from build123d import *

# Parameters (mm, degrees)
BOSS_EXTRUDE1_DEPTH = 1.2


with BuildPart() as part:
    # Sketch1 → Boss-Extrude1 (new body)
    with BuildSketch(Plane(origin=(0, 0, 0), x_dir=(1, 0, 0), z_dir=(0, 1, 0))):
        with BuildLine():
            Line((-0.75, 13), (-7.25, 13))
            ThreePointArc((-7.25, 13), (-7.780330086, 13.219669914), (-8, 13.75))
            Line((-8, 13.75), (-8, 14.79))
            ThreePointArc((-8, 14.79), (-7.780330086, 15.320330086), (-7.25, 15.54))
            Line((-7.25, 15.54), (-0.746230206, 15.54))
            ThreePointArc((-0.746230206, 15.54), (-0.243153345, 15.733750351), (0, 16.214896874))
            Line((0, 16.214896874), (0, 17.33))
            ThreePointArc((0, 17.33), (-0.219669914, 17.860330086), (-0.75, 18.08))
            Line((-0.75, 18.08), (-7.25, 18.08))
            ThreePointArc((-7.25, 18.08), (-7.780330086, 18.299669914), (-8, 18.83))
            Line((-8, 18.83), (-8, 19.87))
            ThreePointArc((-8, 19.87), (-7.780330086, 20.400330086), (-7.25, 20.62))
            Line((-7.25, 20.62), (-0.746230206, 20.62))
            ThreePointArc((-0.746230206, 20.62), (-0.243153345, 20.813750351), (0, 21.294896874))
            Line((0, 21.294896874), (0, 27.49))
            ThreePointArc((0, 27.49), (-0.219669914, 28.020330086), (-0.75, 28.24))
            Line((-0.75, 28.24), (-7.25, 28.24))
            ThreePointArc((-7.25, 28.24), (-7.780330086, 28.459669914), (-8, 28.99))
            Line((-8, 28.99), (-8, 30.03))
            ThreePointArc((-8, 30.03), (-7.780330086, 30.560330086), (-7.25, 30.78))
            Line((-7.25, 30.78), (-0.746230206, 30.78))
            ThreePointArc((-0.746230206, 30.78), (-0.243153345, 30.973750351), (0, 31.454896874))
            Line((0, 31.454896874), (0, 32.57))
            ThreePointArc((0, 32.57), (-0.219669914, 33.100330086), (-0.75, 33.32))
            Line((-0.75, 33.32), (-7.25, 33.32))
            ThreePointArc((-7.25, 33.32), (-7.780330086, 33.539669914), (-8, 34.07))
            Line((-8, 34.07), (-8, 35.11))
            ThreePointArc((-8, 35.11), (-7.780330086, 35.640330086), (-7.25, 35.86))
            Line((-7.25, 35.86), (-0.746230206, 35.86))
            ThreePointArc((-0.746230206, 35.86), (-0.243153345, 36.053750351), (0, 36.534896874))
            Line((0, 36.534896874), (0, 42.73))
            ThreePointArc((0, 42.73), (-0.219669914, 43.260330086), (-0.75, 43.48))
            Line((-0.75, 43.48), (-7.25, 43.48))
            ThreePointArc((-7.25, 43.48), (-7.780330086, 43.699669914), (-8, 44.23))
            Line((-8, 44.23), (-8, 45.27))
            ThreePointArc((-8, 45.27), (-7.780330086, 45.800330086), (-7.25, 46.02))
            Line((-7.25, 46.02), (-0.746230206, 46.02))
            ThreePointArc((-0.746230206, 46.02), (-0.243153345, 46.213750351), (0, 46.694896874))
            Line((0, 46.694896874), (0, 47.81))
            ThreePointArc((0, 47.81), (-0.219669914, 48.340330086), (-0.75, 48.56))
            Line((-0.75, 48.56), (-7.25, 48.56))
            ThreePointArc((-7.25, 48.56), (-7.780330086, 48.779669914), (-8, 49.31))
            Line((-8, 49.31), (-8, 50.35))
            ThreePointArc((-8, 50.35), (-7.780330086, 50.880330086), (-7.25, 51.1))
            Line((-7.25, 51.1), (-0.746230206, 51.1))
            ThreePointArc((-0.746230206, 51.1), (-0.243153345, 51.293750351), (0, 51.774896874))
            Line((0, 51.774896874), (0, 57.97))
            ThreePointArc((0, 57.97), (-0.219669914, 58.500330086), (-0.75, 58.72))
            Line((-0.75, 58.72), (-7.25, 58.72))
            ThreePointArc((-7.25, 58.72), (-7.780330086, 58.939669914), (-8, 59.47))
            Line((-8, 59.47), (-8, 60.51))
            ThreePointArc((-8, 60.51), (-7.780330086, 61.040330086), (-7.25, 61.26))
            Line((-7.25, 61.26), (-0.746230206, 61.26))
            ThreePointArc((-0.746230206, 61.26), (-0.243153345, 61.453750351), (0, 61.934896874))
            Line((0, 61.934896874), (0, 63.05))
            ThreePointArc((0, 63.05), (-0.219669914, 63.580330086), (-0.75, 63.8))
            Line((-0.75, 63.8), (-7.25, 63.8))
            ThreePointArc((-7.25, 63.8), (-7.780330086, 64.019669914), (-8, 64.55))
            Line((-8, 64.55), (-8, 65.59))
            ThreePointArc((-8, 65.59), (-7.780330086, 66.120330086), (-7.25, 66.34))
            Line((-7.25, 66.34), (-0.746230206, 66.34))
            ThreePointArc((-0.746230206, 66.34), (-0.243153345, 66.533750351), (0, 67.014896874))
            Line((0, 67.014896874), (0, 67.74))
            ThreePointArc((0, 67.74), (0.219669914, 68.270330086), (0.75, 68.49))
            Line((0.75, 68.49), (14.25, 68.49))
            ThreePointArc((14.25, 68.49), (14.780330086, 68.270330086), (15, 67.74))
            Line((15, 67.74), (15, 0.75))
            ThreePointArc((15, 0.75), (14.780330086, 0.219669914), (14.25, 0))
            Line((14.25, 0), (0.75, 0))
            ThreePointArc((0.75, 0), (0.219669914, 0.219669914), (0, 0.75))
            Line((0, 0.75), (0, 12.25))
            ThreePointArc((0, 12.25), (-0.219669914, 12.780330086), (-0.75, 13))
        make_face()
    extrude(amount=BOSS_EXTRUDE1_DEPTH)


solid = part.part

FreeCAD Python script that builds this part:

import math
import FreeCAD as App
import Part
import Sketcher
from FreeCAD import Vector
Q = App.Units.Quantity

doc = App.newDocument("Part")
body = doc.addObject("PartDesign::Body", "Body")

# Sketch on XZ plane
sketch1 = doc.addObject("Sketcher::SketchObject", "Sketch")
body.addObject(sketch1)
sketch1.AttachmentSupport = (doc.XZ_Plane, [""])
sketch1.MapMode = "FlatFace"
sketch1.addGeometry([
    Part.LineSegment(Vector(-7.2, -13, 0), Vector(-0.8, -13, 0)),  # 0
    Part.ArcOfCircle(Part.Circle(Vector(-0.8, -12.2, 0), Vector(0, 0, 1), 0.8), math.radians(-90), math.radians(0)),  # 1
    Part.LineSegment(Vector(0, -12.2, 0), Vector(0, -0.8, 0)),  # 2
    Part.ArcOfCircle(Part.Circle(Vector(0.8, -0.8, 0), Vector(0, 0, 1), 0.8), math.radians(90), math.radians(180)),  # 3
    Part.LineSegment(Vector(0.8, 0, 0), Vector(14.2, 0, 0)),  # 4
    Part.ArcOfCircle(Part.Circle(Vector(14.2, -0.8, 0), Vector(0, 0, 1), 0.8), math.radians(0), math.radians(90)),  # 5
    Part.LineSegment(Vector(15, -0.8, 0), Vector(15, -67.7, 0)),  # 6
    Part.ArcOfCircle(Part.Circle(Vector(14.2, -67.7, 0), Vector(0, 0, 1), 0.8), math.radians(-90), math.radians(0)),  # 7
    Part.LineSegment(Vector(14.2, -68.5, 0), Vector(0.8, -68.5, 0)),  # 8
    Part.ArcOfCircle(Part.Circle(Vector(0.8, -67.7, 0), Vector(0, 0, 1), 0.8), math.radians(180), math.radians(270)),  # 9
    Part.LineSegment(Vector(0, -67.7, 0), Vector(0, -67, 0)),  # 10
    Part.ArcOfCircle(Part.Circle(Vector(-0.7, -67.1, 0), Vector(0, 0, 1), 0.8), math.radians(6), math.radians(90)),  # 11
    Part.LineSegment(Vector(-0.7, -66.3, 0), Vector(-7.2, -66.3, 0)),  # 12
    Part.ArcOfCircle(Part.Circle(Vector(-7.2, -65.6, 0), Vector(0, 0, 1), 0.8), math.radians(180), math.radians(270)),  # 13
    Part.LineSegment(Vector(-8, -65.6, 0), Vector(-8, -64.5, 0)),  # 14
    Part.ArcOfCircle(Part.Circle(Vector(-7.2, -64.5, 0), Vector(0, 0, 1), 0.8), math.radians(90), math.radians(180)),  # 15
    Part.LineSegment(Vector(-7.2, -63.8, 0), Vector(-0.8, -63.8, 0)),  # 16
    Part.ArcOfCircle(Part.Circle(Vector(-0.8, -63, 0), Vector(0, 0, 1), 0.8), math.radians(-90), math.radians(0)),  # 17
    Part.LineSegment(Vector(0, -63, 0), Vector(0, -61.9, 0)),  # 18
    Part.ArcOfCircle(Part.Circle(Vector(-0.7, -62, 0), Vector(0, 0, 1), 0.8), math.radians(6), math.radians(90)),  # 19
    Part.LineSegment(Vector(-0.7, -61.3, 0), Vector(-7.2, -61.3, 0)),  # 20
    Part.ArcOfCircle(Part.Circle(Vector(-7.2, -60.5, 0), Vector(0, 0, 1), 0.8), math.radians(180), math.radians(270)),  # 21
    Part.LineSegment(Vector(-8, -60.5, 0), Vector(-8, -59.5, 0)),  # 22
    Part.ArcOfCircle(Part.Circle(Vector(-7.2, -59.5, 0), Vector(0, 0, 1), 0.8), math.radians(90), math.radians(180)),  # 23
    Part.LineSegment(Vector(-7.2, -58.7, 0), Vector(-0.8, -58.7, 0)),  # 24
    Part.ArcOfCircle(Part.Circle(Vector(-0.8, -58, 0), Vector(0, 0, 1), 0.8), math.radians(-90), math.radians(0)),  # 25
    Part.LineSegment(Vector(0, -58, 0), Vector(0, -51.8, 0)),  # 26
    Part.ArcOfCircle(Part.Circle(Vector(-0.7, -51.9, 0), Vector(0, 0, 1), 0.8), math.radians(6), math.radians(90)),  # 27
    Part.LineSegment(Vector(-0.7, -51.1, 0), Vector(-7.2, -51.1, 0)),  # 28
    Part.ArcOfCircle(Part.Circle(Vector(-7.2, -50.4, 0), Vector(0, 0, 1), 0.8), math.radians(180), math.radians(270)),  # 29
    Part.LineSegment(Vector(-8, -50.4, 0), Vector(-8, -49.3, 0)),  # 30
    Part.ArcOfCircle(Part.Circle(Vector(-7.2, -49.3, 0), Vector(0, 0, 1), 0.8), math.radians(90), math.radians(180)),  # 31
    Part.LineSegment(Vector(-7.2, -48.6, 0), Vector(-0.8, -48.6, 0)),  # 32
    Part.ArcOfCircle(Part.Circle(Vector(-0.8, -47.8, 0), Vector(0, 0, 1), 0.8), math.radians(-90), math.radians(0)),  # 33
    Part.LineSegment(Vector(0, -47.8, 0), Vector(0, -46.7, 0)),  # 34
    Part.ArcOfCircle(Part.Circle(Vector(-0.7, -46.8, 0), Vector(0, 0, 1), 0.8), math.radians(6), math.radians(90)),  # 35
    Part.LineSegment(Vector(-0.7, -46, 0), Vector(-7.2, -46, 0)),  # 36
    Part.ArcOfCircle(Part.Circle(Vector(-7.2, -45.3, 0), Vector(0, 0, 1), 0.8), math.radians(180), math.radians(270)),  # 37
    Part.LineSegment(Vector(-8, -45.3, 0), Vector(-8, -44.2, 0)),  # 38
    Part.ArcOfCircle(Part.Circle(Vector(-7.2, -44.2, 0), Vector(0, 0, 1), 0.8), math.radians(90), math.radians(180)),  # 39
    Part.LineSegment(Vector(-7.2, -43.5, 0), Vector(-0.8, -43.5, 0)),  # 40
    Part.ArcOfCircle(Part.Circle(Vector(-0.8, -42.7, 0), Vector(0, 0, 1), 0.8), math.radians(-90), math.radians(0)),  # 41
    Part.LineSegment(Vector(0, -42.7, 0), Vector(0, -36.5, 0)),  # 42
    Part.ArcOfCircle(Part.Circle(Vector(-0.7, -36.6, 0), Vector(0, 0, 1), 0.8), math.radians(6), math.radians(90)),  # 43
    Part.LineSegment(Vector(-0.7, -35.9, 0), Vector(-7.2, -35.9, 0)),  # 44
    Part.ArcOfCircle(Part.Circle(Vector(-7.2, -35.1, 0), Vector(0, 0, 1), 0.8), math.radians(180), math.radians(270)),  # 45
    Part.LineSegment(Vector(-8, -35.1, 0), Vector(-8, -34.1, 0)),  # 46
    Part.ArcOfCircle(Part.Circle(Vector(-7.2, -34.1, 0), Vector(0, 0, 1), 0.8), math.radians(90), math.radians(180)),  # 47
    Part.LineSegment(Vector(-7.2, -33.3, 0), Vector(-0.8, -33.3, 0)),  # 48
    Part.ArcOfCircle(Part.Circle(Vector(-0.8, -32.6, 0), Vector(0, 0, 1), 0.8), math.radians(-90), math.radians(0)),  # 49
    Part.LineSegment(Vector(0, -32.6, 0), Vector(0, -31.5, 0)),  # 50
    Part.ArcOfCircle(Part.Circle(Vector(-0.7, -31.5, 0), Vector(0, 0, 1), 0.8), math.radians(6), math.radians(90)),  # 51
    Part.LineSegment(Vector(-0.7, -30.8, 0), Vector(-7.2, -30.8, 0)),  # 52
    Part.ArcOfCircle(Part.Circle(Vector(-7.2, -30, 0), Vector(0, 0, 1), 0.8), math.radians(180), math.radians(270)),  # 53
    Part.LineSegment(Vector(-8, -30, 0), Vector(-8, -29, 0)),  # 54
    Part.ArcOfCircle(Part.Circle(Vector(-7.2, -29, 0), Vector(0, 0, 1), 0.8), math.radians(90), math.radians(180)),  # 55
    Part.LineSegment(Vector(-7.2, -28.2, 0), Vector(-0.8, -28.2, 0)),  # 56
    Part.ArcOfCircle(Part.Circle(Vector(-0.8, -27.5, 0), Vector(0, 0, 1), 0.8), math.radians(-90), math.radians(0)),  # 57
    Part.LineSegment(Vector(0, -27.5, 0), Vector(0, -21.3, 0)),  # 58
    Part.ArcOfCircle(Part.Circle(Vector(-0.7, -21.4, 0), Vector(0, 0, 1), 0.8), math.radians(6), math.radians(90)),  # 59
    Part.LineSegment(Vector(-0.7, -20.6, 0), Vector(-7.2, -20.6, 0)),  # 60
    Part.ArcOfCircle(Part.Circle(Vector(-7.2, -19.9, 0), Vector(0, 0, 1), 0.8), math.radians(180), math.radians(270)),  # 61
    Part.LineSegment(Vector(-8, -19.9, 0), Vector(-8, -18.8, 0)),  # 62
    Part.ArcOfCircle(Part.Circle(Vector(-7.2, -18.8, 0), Vector(0, 0, 1), 0.8), math.radians(90), math.radians(180)),  # 63
    Part.LineSegment(Vector(-7.2, -18.1, 0), Vector(-0.8, -18.1, 0)),  # 64
    Part.ArcOfCircle(Part.Circle(Vector(-0.8, -17.3, 0), Vector(0, 0, 1), 0.8), math.radians(-90), math.radians(0)),  # 65
    Part.LineSegment(Vector(0, -17.3, 0), Vector(0, -16.2, 0)),  # 66
    Part.ArcOfCircle(Part.Circle(Vector(-0.7, -16.3, 0), Vector(0, 0, 1), 0.8), math.radians(6), math.radians(90)),  # 67
    Part.LineSegment(Vector(-0.7, -15.5, 0), Vector(-7.2, -15.5, 0)),  # 68
    Part.ArcOfCircle(Part.Circle(Vector(-7.2, -14.8, 0), Vector(0, 0, 1), 0.8), math.radians(180), math.radians(270)),  # 69
    Part.LineSegment(Vector(-8, -14.8, 0), Vector(-8, -13.8, 0)),  # 70
    Part.ArcOfCircle(Part.Circle(Vector(-7.2, -13.8, 0), Vector(0, 0, 1), 0.8), math.radians(90), math.radians(180)),  # 71
], False)
sketch1.addConstraint([
    Sketcher.Constraint("Tangent", 0, 2, 1, 1),
    Sketcher.Constraint("Tangent", 1, 2, 2, 1),
    Sketcher.Constraint("Tangent", 2, 2, 3, 2),
    Sketcher.Constraint("Tangent", 3, 1, 4, 1),
    Sketcher.Constraint("Tangent", 4, 2, 5, 2),
    Sketcher.Constraint("Tangent", 5, 1, 6, 1),
    Sketcher.Constraint("Tangent", 6, 2, 7, 2),
    Sketcher.Constraint("Tangent", 7, 1, 8, 1),
    Sketcher.Constraint("Tangent", 8, 2, 9, 2),
    Sketcher.Constraint("Tangent", 9, 1, 10, 1),
    Sketcher.Constraint("Coincident", 10, 2, 11, 1),
    Sketcher.Constraint("Tangent", 11, 2, 12, 1),
    Sketcher.Constraint("Tangent", 12, 2, 13, 2),
    Sketcher.Constraint("Tangent", 13, 1, 14, 1),
    Sketcher.Constraint("Tangent", 14, 2, 15, 2),
    Sketcher.Constraint("Tangent", 15, 1, 16, 1),
    Sketcher.Constraint("Tangent", 16, 2, 17, 1),
    Sketcher.Constraint("Tangent", 17, 2, 18, 1),
    Sketcher.Constraint("Coincident", 18, 2, 19, 1),
    Sketcher.Constraint("Tangent", 19, 2, 20, 1),
    Sketcher.Constraint("Tangent", 20, 2, 21, 2),
    Sketcher.Constraint("Tangent", 21, 1, 22, 1),
    Sketcher.Constraint("Tangent", 22, 2, 23, 2),
    Sketcher.Constraint("Tangent", 23, 1, 24, 1),
    Sketcher.Constraint("Tangent", 24, 2, 25, 1),
    Sketcher.Constraint("Tangent", 25, 2, 26, 1),
    Sketcher.Constraint("Coincident", 26, 2, 27, 1),
    Sketcher.Constraint("Tangent", 27, 2, 28, 1),
    Sketcher.Constraint("Tangent", 28, 2, 29, 2),
    Sketcher.Constraint("Tangent", 29, 1, 30, 1),
    Sketcher.Constraint("Tangent", 30, 2, 31, 2),
    Sketcher.Constraint("Tangent", 31, 1, 32, 1),
    Sketcher.Constraint("Tangent", 32, 2, 33, 1),
    Sketcher.Constraint("Tangent", 33, 2, 34, 1),
    Sketcher.Constraint("Coincident", 34, 2, 35, 1),
    Sketcher.Constraint("Tangent", 35, 2, 36, 1),
    Sketcher.Constraint("Tangent", 36, 2, 37, 2),
    Sketcher.Constraint("Tangent", 37, 1, 38, 1),
    Sketcher.Constraint("Tangent", 38, 2, 39, 2),
    Sketcher.Constraint("Tangent", 39, 1, 40, 1),
    Sketcher.Constraint("Tangent", 40, 2, 41, 1),
    Sketcher.Constraint("Tangent", 41, 2, 42, 1),
    Sketcher.Constraint("Coincident", 42, 2, 43, 1),
    Sketcher.Constraint("Tangent", 43, 2, 44, 1),
    Sketcher.Constraint("Tangent", 44, 2, 45, 2),
    Sketcher.Constraint("Tangent", 45, 1, 46, 1),
    Sketcher.Constraint("Tangent", 46, 2, 47, 2),
    Sketcher.Constraint("Tangent", 47, 1, 48, 1),
    Sketcher.Constraint("Tangent", 48, 2, 49, 1),
    Sketcher.Constraint("Tangent", 49, 2, 50, 1),
    Sketcher.Constraint("Coincident", 50, 2, 51, 1),
    Sketcher.Constraint("Tangent", 51, 2, 52, 1),
    Sketcher.Constraint("Tangent", 52, 2, 53, 2),
    Sketcher.Constraint("Tangent", 53, 1, 54, 1),
    Sketcher.Constraint("Tangent", 54, 2, 55, 2),
    Sketcher.Constraint("Tangent", 55, 1, 56, 1),
    Sketcher.Constraint("Tangent", 56, 2, 57, 1),
    Sketcher.Constraint("Tangent", 57, 2, 58, 1),
    Sketcher.Constraint("Coincident", 58, 2, 59, 1),
    Sketcher.Constraint("Tangent", 59, 2, 60, 1),
    Sketcher.Constraint("Tangent", 60, 2, 61, 2),
    Sketcher.Constraint("Tangent", 61, 1, 62, 1),
    Sketcher.Constraint("Tangent", 62, 2, 63, 2),
    Sketcher.Constraint("Tangent", 63, 1, 64, 1),
    Sketcher.Constraint("Tangent", 64, 2, 65, 1),
    Sketcher.Constraint("Tangent", 65, 2, 66, 1),
    Sketcher.Constraint("Coincident", 66, 2, 67, 1),
    Sketcher.Constraint("Tangent", 67, 2, 68, 1),
    Sketcher.Constraint("Tangent", 68, 2, 69, 2),
    Sketcher.Constraint("Tangent", 69, 1, 70, 1),
    Sketcher.Constraint("Tangent", 70, 2, 71, 2),
    Sketcher.Constraint("Tangent", 71, 1, 0, 1),
    Sketcher.Constraint("Horizontal", 0),
    Sketcher.Constraint("Vertical", 2),
    Sketcher.Constraint("Horizontal", 4),
    Sketcher.Constraint("Vertical", 6),
    Sketcher.Constraint("Horizontal", 8),
    Sketcher.Constraint("Vertical", 10),
    Sketcher.Constraint("Horizontal", 12),
    Sketcher.Constraint("Vertical", 14),
    Sketcher.Constraint("Horizontal", 16),
    Sketcher.Constraint("Vertical", 18),
    Sketcher.Constraint("Horizontal", 20),
    Sketcher.Constraint("Vertical", 22),
    Sketcher.Constraint("Horizontal", 24),
    Sketcher.Constraint("Vertical", 26),
    Sketcher.Constraint("Horizontal", 28),
    Sketcher.Constraint("Vertical", 30),
    Sketcher.Constraint("Horizontal", 32),
    Sketcher.Constraint("Vertical", 34),
    Sketcher.Constraint("Horizontal", 36),
    Sketcher.Constraint("Vertical", 38),
    Sketcher.Constraint("Horizontal", 40),
    Sketcher.Constraint("Vertical", 42),
    Sketcher.Constraint("Horizontal", 44),
    Sketcher.Constraint("Vertical", 46),
    Sketcher.Constraint("Horizontal", 48),
    Sketcher.Constraint("Vertical", 50),
    Sketcher.Constraint("Horizontal", 52),
    Sketcher.Constraint("Vertical", 54),
    Sketcher.Constraint("Horizontal", 56),
    Sketcher.Constraint("Vertical", 58),
    Sketcher.Constraint("Horizontal", 60),
    Sketcher.Constraint("Vertical", 62),
    Sketcher.Constraint("Horizontal", 64),
    Sketcher.Constraint("Vertical", 66),
    Sketcher.Constraint("Horizontal", 68),
    Sketcher.Constraint("Vertical", 70),
    Sketcher.Constraint("Equal", 1, 3),
    Sketcher.Constraint("Equal", 3, 5),
    Sketcher.Constraint("Equal", 5, 7),
    Sketcher.Constraint("Equal", 7, 9),
    Sketcher.Constraint("Equal", 9, 11),
    Sketcher.Constraint("Equal", 11, 13),
    Sketcher.Constraint("Equal", 13, 15),
    Sketcher.Constraint("Equal", 15, 17),
    Sketcher.Constraint("Equal", 17, 19),
    Sketcher.Constraint("Equal", 19, 21),
    Sketcher.Constraint("Equal", 21, 23),
    Sketcher.Constraint("Equal", 23, 25),
    Sketcher.Constraint("Equal", 25, 27),
    Sketcher.Constraint("Equal", 27, 29),
    Sketcher.Constraint("Equal", 29, 31),
    Sketcher.Constraint("Equal", 31, 33),
    Sketcher.Constraint("Equal", 33, 35),
    Sketcher.Constraint("Equal", 35, 37),
    Sketcher.Constraint("Equal", 37, 39),
    Sketcher.Constraint("Equal", 39, 41),
    Sketcher.Constraint("Equal", 41, 43),
    Sketcher.Constraint("Equal", 43, 45),
    Sketcher.Constraint("Equal", 45, 47),
    Sketcher.Constraint("Equal", 47, 49),
    Sketcher.Constraint("Equal", 49, 51),
    Sketcher.Constraint("Equal", 51, 53),
    Sketcher.Constraint("Equal", 53, 55),
    Sketcher.Constraint("Equal", 55, 57),
    Sketcher.Constraint("Equal", 57, 59),
    Sketcher.Constraint("Equal", 59, 61),
    Sketcher.Constraint("Equal", 61, 63),
    Sketcher.Constraint("Equal", 63, 65),
    Sketcher.Constraint("Equal", 65, 67),
    Sketcher.Constraint("Equal", 67, 69),
    Sketcher.Constraint("Equal", 69, 71),
    Sketcher.Constraint("PointOnObject", 1, 2, -2),
    Sketcher.Constraint("PointOnObject", 3, 1, -1),
    Sketcher.Constraint("PointOnObject", 9, 1, -2),
    Sketcher.Constraint("PointOnObject", 17, 2, -2),
    Sketcher.Constraint("PointOnObject", 25, 2, -2),
    Sketcher.Constraint("PointOnObject", 33, 2, -2),
    Sketcher.Constraint("PointOnObject", 41, 2, -2),
    Sketcher.Constraint("PointOnObject", 49, 2, -2),
    Sketcher.Constraint("PointOnObject", 57, 2, -2),
    Sketcher.Constraint("PointOnObject", 65, 2, -2),
    Sketcher.Constraint("Vertical", 11, 3, 19, 3),
    Sketcher.Constraint("Vertical", 15, 3, 21, 3),
    Sketcher.Constraint("Vertical", 19, 3, 27, 3),
    Sketcher.Constraint("Vertical", 23, 3, 29, 3),
    Sketcher.Constraint("Vertical", 27, 3, 35, 3),
    Sketcher.Constraint("Vertical", 31, 3, 37, 3),
    Sketcher.Constraint("Vertical", 35, 3, 43, 3),
    Sketcher.Constraint("Vertical", 39, 3, 45, 3),
    Sketcher.Constraint("Vertical", 43, 3, 51, 3),
    Sketcher.Constraint("Vertical", 47, 3, 53, 3),
    Sketcher.Constraint("Vertical", 51, 3, 59, 3),
    Sketcher.Constraint("Vertical", 55, 3, 61, 3),
    Sketcher.Constraint("Vertical", 59, 3, 67, 3),
    Sketcher.Constraint("Vertical", 63, 3, 69, 3),
    Sketcher.Constraint("Equal", 14, 22),
    Sketcher.Constraint("Equal", 22, 30),
    Sketcher.Constraint("Equal", 18, 34),
    Sketcher.Constraint("Equal", 30, 38),
    Sketcher.Constraint("Equal", 26, 42),
    Sketcher.Constraint("Equal", 38, 46),
    Sketcher.Constraint("Equal", 34, 50),
    Sketcher.Constraint("Equal", 46, 54),
    Sketcher.Constraint("Equal", 42, 58),
    Sketcher.Constraint("Equal", 54, 62),
    Sketcher.Constraint("Equal", 50, 66),
    Sketcher.Constraint("Equal", 62, 70),
    Sketcher.Constraint("Radius", 1, Q("0.75 mm")),
    Sketcher.Constraint("DistanceX", 0, 1, 0, 2, Q("6.5 mm")),
    Sketcher.Constraint("DistanceX", 4, 1, 4, 2, Q("13.5 mm")),
    Sketcher.Constraint("DistanceY", 2, 1, 2, 2, Q("11.5 mm")),
    Sketcher.Constraint("DistanceY", 6, 2, 6, 1, Q("66.99 mm")),
    Sketcher.Constraint("DistanceY", 14, 1, 14, 2, Q("1.04 mm")),
    Sketcher.Constraint("DistanceY", 15, 1, -1, 1, Q("63.8 mm")),
    Sketcher.Constraint("DistanceY", 27, 2, -1, 1, Q("51.1 mm")),
    Sketcher.Constraint("DistanceX", 12, 2, 12, 1, Q("6.50377 mm")),
])
pad1 = doc.addObject("PartDesign::Pad", "Pad")
body.addObject(pad1)
pad1.Profile = sketch1
pad1.Length = 1.2
pad1.Reversed = True

doc.recompute()
